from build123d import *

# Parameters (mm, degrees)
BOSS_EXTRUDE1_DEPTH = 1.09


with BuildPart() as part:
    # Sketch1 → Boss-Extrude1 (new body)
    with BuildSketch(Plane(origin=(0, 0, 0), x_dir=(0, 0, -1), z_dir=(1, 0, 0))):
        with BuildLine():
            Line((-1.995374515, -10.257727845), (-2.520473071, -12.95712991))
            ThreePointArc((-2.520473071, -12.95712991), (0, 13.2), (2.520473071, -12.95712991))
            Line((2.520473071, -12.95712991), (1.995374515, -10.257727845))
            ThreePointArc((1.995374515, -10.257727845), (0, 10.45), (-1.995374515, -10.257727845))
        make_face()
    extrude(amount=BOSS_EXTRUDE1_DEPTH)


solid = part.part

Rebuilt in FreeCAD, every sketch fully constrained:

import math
import FreeCAD as App
import Part
import Sketcher

doc = App.newDocument("Part")
body = doc.addObject("PartDesign::Body", "Body")

sketch1 = body.newObject("Sketcher::SketchObject", "Sketch")
sketch1.AttachmentSupport = (doc.getObject("YZ_Plane"), [""])
sketch1.MapMode = "FlatFace"
sketch1.addGeometry([
    Part.LineSegment(App.Vector(-13, 2.5, 0), App.Vector(-10.3, 2, 0)),
    Part.ArcOfCircle(Part.Circle(App.Vector(0, 0, 0), App.Vector(0, 0, 1), 10.4), math.radians(-169), math.radians(169)),
    Part.LineSegment(App.Vector(-10.3, -2, 0), App.Vector(-13, -2.5, 0)),
    Part.ArcOfCircle(Part.Circle(App.Vector(0, 0, 0), App.Vector(0, 0, 1), 13.2), math.radians(-169), math.radians(169)),
], False)
sketch1.addConstraint([
    Sketcher.Constraint("Coincident", 0, 2, 1, 2),
    Sketcher.Constraint("Coincident", 1, 1, 2, 1),
    Sketcher.Constraint("Coincident", 2, 2, 3, 1),
    Sketcher.Constraint("Coincident", 3, 2, 0, 1),
    Sketcher.Constraint("Coincident", 1, 3, -1, 1),
    Sketcher.Constraint("Coincident", 3, 3, -1, 1),
    Sketcher.Constraint("Vertical", 0, 2, 1, 1),
    Sketcher.Constraint("Vertical", 2, 2, 3, 2),
    Sketcher.Constraint("Radius", 3, 13.2),
    Sketcher.Constraint("Radius", 1, 10.45),
    Sketcher.Constraint("DistanceY", 2, 2, 1, 1, 0.525099),
    Sketcher.Constraint("DistanceX", 2, 2, -1, 1, 12.95713),
])
pad1 = body.newObject("PartDesign::Pad", "Pad")
pad1.Profile = sketch1
pad1.Length = 1.09

doc.recompute()
